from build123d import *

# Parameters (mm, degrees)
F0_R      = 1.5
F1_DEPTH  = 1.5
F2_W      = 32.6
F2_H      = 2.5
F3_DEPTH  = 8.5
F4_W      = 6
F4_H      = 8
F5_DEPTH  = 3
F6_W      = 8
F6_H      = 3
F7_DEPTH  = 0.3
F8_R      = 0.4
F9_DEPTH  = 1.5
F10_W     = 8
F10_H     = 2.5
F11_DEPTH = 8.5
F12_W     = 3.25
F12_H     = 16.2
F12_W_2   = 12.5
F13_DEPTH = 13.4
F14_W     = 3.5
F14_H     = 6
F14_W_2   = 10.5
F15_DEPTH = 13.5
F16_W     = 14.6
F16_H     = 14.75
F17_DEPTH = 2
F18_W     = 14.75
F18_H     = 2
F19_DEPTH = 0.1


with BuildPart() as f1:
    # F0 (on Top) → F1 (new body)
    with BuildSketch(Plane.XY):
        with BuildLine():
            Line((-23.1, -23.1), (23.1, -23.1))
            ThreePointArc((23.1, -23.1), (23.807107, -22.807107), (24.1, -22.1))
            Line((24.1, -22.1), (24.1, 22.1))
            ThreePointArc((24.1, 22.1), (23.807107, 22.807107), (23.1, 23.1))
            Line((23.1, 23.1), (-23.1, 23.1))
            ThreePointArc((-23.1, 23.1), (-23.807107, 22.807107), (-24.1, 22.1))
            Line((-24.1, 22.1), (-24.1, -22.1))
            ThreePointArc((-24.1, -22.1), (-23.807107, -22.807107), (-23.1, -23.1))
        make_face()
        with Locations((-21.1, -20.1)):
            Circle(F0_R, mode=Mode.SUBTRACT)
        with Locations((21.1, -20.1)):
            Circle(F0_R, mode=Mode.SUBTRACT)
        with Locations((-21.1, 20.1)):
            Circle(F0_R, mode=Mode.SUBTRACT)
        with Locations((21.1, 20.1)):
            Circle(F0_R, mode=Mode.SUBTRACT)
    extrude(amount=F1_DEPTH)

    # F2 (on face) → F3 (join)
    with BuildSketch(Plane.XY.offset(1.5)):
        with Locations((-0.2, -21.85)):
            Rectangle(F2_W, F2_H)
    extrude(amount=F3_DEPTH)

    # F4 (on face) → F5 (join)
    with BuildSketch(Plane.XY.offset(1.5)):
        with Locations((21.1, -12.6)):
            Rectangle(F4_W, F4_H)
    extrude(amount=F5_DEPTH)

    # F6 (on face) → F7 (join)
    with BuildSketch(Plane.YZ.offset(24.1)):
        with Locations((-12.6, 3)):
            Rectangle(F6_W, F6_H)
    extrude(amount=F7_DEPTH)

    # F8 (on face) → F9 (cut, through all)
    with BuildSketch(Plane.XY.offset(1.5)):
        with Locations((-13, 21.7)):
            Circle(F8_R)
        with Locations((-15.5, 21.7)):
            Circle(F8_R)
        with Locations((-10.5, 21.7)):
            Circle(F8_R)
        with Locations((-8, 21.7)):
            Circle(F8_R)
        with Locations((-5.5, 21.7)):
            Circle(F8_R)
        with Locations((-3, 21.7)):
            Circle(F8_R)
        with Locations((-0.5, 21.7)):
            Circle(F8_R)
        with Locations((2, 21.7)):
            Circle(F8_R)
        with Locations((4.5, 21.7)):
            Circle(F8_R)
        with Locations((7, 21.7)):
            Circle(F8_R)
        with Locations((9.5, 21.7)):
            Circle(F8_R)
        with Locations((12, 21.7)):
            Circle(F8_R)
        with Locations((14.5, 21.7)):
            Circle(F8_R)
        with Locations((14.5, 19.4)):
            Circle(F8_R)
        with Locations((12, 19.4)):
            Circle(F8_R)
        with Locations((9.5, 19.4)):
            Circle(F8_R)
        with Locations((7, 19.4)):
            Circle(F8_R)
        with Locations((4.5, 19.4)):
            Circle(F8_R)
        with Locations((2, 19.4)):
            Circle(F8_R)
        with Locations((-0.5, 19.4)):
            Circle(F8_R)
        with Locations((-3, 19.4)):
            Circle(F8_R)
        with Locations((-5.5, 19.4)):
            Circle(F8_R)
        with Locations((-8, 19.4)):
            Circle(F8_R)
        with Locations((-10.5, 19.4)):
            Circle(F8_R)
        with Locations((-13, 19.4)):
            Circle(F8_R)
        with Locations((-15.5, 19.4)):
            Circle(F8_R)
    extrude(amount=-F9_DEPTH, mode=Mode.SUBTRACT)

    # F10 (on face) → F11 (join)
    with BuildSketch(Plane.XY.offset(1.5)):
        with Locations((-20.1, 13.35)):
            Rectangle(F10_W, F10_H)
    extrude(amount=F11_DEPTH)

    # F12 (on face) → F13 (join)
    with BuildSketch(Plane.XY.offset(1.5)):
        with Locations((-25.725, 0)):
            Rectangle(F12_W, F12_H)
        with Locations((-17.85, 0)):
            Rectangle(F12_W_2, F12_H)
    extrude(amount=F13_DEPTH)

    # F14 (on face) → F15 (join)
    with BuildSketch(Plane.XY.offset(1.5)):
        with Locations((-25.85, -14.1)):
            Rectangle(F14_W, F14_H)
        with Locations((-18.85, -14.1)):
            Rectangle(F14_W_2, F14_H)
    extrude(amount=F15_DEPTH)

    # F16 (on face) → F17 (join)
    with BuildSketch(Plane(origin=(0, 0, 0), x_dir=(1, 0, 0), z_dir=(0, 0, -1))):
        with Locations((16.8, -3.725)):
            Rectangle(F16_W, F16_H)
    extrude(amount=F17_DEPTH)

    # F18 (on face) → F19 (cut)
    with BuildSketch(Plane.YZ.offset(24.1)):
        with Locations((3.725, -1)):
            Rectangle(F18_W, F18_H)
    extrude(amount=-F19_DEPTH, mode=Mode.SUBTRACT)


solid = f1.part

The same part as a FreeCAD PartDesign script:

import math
import FreeCAD as App
import Part
import Sketcher
from FreeCAD import Vector
Q = App.Units.Quantity

doc = App.newDocument("Part")
body = doc.addObject("PartDesign::Body", "Body")

# Sketch on XY plane
sketch1 = body.newObject("Sketcher::SketchObject", "Sketch")
sketch1.AttachmentSupport = (doc.getObject("XY_Plane"), [""])
sketch1.MapMode = "FlatFace"
sketch1.addGeometry([
    Part.LineSegment(Vector(-23.1, -23.1, 0), Vector(23.1, -23.1, 0)),  # 0
    Part.ArcOfCircle(Part.Circle(Vector(23.1, -22.1, 0), Vector(0, 0, 1), 1), math.radians(-90), math.radians(0)),  # 1
    Part.LineSegment(Vector(24.1, -22.1, 0), Vector(24.1, 22.1, 0)),  # 2
    Part.ArcOfCircle(Part.Circle(Vector(23.1, 22.1, 0), Vector(0, 0, 1), 1), math.radians(0), math.radians(90)),  # 3
    Part.LineSegment(Vector(23.1, 23.1, 0), Vector(-23.1, 23.1, 0)),  # 4
    Part.ArcOfCircle(Part.Circle(Vector(-23.1, 22.1, 0), Vector(0, 0, 1), 1), math.radians(90), math.radians(180)),  # 5
    Part.LineSegment(Vector(-24.1, 22.1, 0), Vector(-24.1, -22.1, 0)),  # 6
    Part.ArcOfCircle(Part.Circle(Vector(-23.1, -22.1, 0), Vector(0, 0, 1), 1), math.radians(180), math.radians(270)),  # 7
    Part.Circle(Vector(-21.1, -20.1, 0), Vector(0, 0, 1), 1.5),  # 8
    Part.Circle(Vector(21.1, -20.1, 0), Vector(0, 0, 1), 1.5),  # 9
    Part.Circle(Vector(-21.1, 20.1, 0), Vector(0, 0, 1), 1.5),  # 10
    Part.Circle(Vector(21.1, 20.1, 0), Vector(0, 0, 1), 1.5),  # 11
], False)
sketch1.addConstraint([
    Sketcher.Constraint("Tangent", 0, 2, 1, 1),
    Sketcher.Constraint("Tangent", 1, 2, 2, 1),
    Sketcher.Constraint("Tangent", 2, 2, 3, 1),
    Sketcher.Constraint("Tangent", 3, 2, 4, 1),
    Sketcher.Constraint("Tangent", 4, 2, 5, 1),
    Sketcher.Constraint("Tangent", 5, 2, 6, 1),
    Sketcher.Constraint("Tangent", 6, 2, 7, 1),
    Sketcher.Constraint("Tangent", 7, 2, 0, 1),
    Sketcher.Constraint("Horizontal", 0),
    Sketcher.Constraint("Vertical", 2),
    Sketcher.Constraint("Horizontal", 4),
    Sketcher.Constraint("Vertical", 6),
    Sketcher.Constraint("Equal", 1, 3),
    Sketcher.Constraint("Equal", 3, 5),
    Sketcher.Constraint("Equal", 5, 7),
    Sketcher.Constraint("Equal", 8, 9),
    Sketcher.Constraint("Equal", 9, 10),
    Sketcher.Constraint("Equal", 10, 11),
    Sketcher.Constraint("Symmetric", 1, 3, 5, 3, -1, 1),
    Sketcher.Constraint("Symmetric", 9, 3, 10, 3, -1, 1),
    Sketcher.Constraint("Symmetric", 8, 3, 11, 3, -1, 1),
    Sketcher.Constraint("Symmetric", 8, 3, 9, 3, -2),
    Sketcher.Constraint("Diameter", 8, Q("3 mm")),
    Sketcher.Constraint("Radius", 1, Q("0.999999 mm")),
    Sketcher.Constraint("DistanceX", 0, 1, 0, 2, Q("46.2 mm")),
    Sketcher.Constraint("DistanceY", 2, 1, 2, 2, Q("44.2 mm")),
    Sketcher.Constraint("DistanceX", 7, 3, 8, 3, Q("2.000001 mm")),
    Sketcher.Constraint("DistanceY", 7, 3, 8, 3, Q("2.000001 mm")),
])
pad1 = body.newObject("PartDesign::Pad", "Pad")
pad1.Profile = sketch1
pad1.Length = 1.5

# Sketch on XY plane
sketch2 = body.newObject("Sketcher::SketchObject", "Sketch001")
sketch2.AttachmentSupport = (doc.getObject("XY_Plane"), [""])
sketch2.MapMode = "FlatFace"
sketch2.AttachmentOffset = App.Placement(Vector(0, 0, 1.5), App.Rotation())
sketch2.addGeometry([
    Part.LineSegment(Vector(-16.5, -20.6, 0), Vector(-16.5, -23.1, 0)),
    Part.LineSegment(Vector(-16.5, -23.1, 0), Vector(16.1, -23.1, 0)),
    Part.LineSegment(Vector(16.1, -23.1, 0), Vector(16.1, -20.6, 0)),
    Part.LineSegment(Vector(16.1, -20.6, 0), Vector(-16.5, -20.6, 0)),
], False)
sketch2.addConstraint([
    Sketcher.Constraint("Coincident", 0, 2, 1, 1),
    Sketcher.Constraint("Coincident", 1, 2, 2, 1),
    Sketcher.Constraint("Coincident", 2, 2, 3, 1),
    Sketcher.Constraint("Coincident", 3, 2, 0, 1),
    Sketcher.Constraint("Vertical", 0),
    Sketcher.Constraint("Horizontal", 1),
    Sketcher.Constraint("Vertical", 2),
    Sketcher.Constraint("Horizontal", 3),
    Sketcher.Constraint("DistanceX", 1, 1, 1, 2, Q("32.6 mm")),
    Sketcher.Constraint("DistanceY", 0, 2, 0, 1, Q("2.5 mm")),
    Sketcher.Constraint("DistanceX", 0, 2, -1, 1, Q("16.5 mm")),
    Sketcher.Constraint("DistanceY", 0, 2, -1, 1, Q("23.1 mm")),
])
pad2 = body.newObject("PartDesign::Pad", "Pad001")
pad2.Profile = sketch2
pad2.Length = 8.5

# Sketch on XY plane
sketch3 = body.newObject("Sketcher::SketchObject", "Sketch002")
sketch3.AttachmentSupport = (doc.getObject("XY_Plane"), [""])
sketch3.MapMode = "FlatFace"
sketch3.AttachmentOffset = App.Placement(Vector(0, 0, 1.5), App.Rotation())
sketch3.addGeometry([
    Part.LineSegment(Vector(18, -9, 0), Vector(18, -17, 0)),
    Part.LineSegment(Vector(18, -17, 0), Vector(24, -17, 0)),
    Part.LineSegment(Vector(24, -17, 0), Vector(24, -9, 0)),
    Part.LineSegment(Vector(24, -9, 0), Vector(18, -9, 0)),
], False)
sketch3.addConstraint([
    Sketcher.Constraint("Coincident", 0, 2, 1, 1),
    Sketcher.Constraint("Coincident", 1, 2, 2, 1),
    Sketcher.Constraint("Coincident", 2, 2, 3, 1),
    Sketcher.Constraint("Coincident", 3, 2, 0, 1),
    Sketcher.Constraint("Vertical", 0),
    Sketcher.Constraint("Horizontal", 1),
    Sketcher.Constraint("Vertical", 2),
    Sketcher.Constraint("Horizontal", 3),
    Sketcher.Constraint("DistanceX", 1, 1, 1, 2, Q("6 mm")),
    Sketcher.Constraint("DistanceY", 0, 2, 0, 1, Q("8 mm")),
    Sketcher.Constraint("DistanceX", -1, 1, 0, 2, Q("18.1 mm")),
    Sketcher.Constraint("DistanceY", 0, 2, -1, 1, Q("16.6 mm")),
])
pad3 = body.newObject("PartDesign::Pad", "Pad002")
pad3.Profile = sketch3
pad3.Length = 3

# Sketch on YZ plane
sketch4 = body.newObject("Sketcher::SketchObject", "Sketch003")
sketch4.AttachmentSupport = (doc.getObject("YZ_Plane"), [""])
sketch4.MapMode = "FlatFace"
sketch4.AttachmentOffset = App.Placement(Vector(0, 0, 24.1), App.Rotation())
sketch4.addGeometry([
    Part.LineSegment(Vector(-16.6, 4.5, 0), Vector(-16.6, 1.5, 0)),
    Part.LineSegment(Vector(-16.6, 1.5, 0), Vector(-8.6, 1.5, 0)),
    Part.LineSegment(Vector(-8.6, 1.5, 0), Vector(-8.6, 4.5, 0)),
    Part.LineSegment(Vector(-8.6, 4.5, 0), Vector(-16.6, 4.5, 0)),
], False)
sketch4.addConstraint([
    Sketcher.Constraint("Coincident", 0, 2, 1, 1),
    Sketcher.Constraint("Coincident", 1, 2, 2, 1),
    Sketcher.Constraint("Coincident", 2, 2, 3, 1),
    Sketcher.Constraint("Coincident", 3, 2, 0, 1),
    Sketcher.Constraint("Vertical", 0),
    Sketcher.Constraint("Horizontal", 1),
    Sketcher.Constraint("Vertical", 2),
    Sketcher.Constraint("Horizontal", 3),
    Sketcher.Constraint("DistanceX", 1, 1, 1, 2, Q("8 mm")),
    Sketcher.Constraint("DistanceY", 0, 2, 0, 1, Q("3 mm")),
    Sketcher.Constraint("DistanceX", 0, 2, -1, 1, Q("16.6 mm")),
    Sketcher.Constraint("DistanceY", -1, 1, 0, 2, Q("1.5 mm")),
])
pad4 = body.newObject("PartDesign::Pad", "Pad003")
pad4.Profile = sketch4
pad4.Length = 0.3

# Sketch on XY plane
sketch5 = body.newObject("Sketcher::SketchObject", "Sketch004")
sketch5.AttachmentSupport = (doc.getObject("XY_Plane"), [""])
sketch5.MapMode = "FlatFace"
sketch5.AttachmentOffset = App.Placement(Vector(0, 0, 1.5), App.Rotation())
sketch5.addGeometry([
    Part.Circle(Vector(-13, 21.7, 0), Vector(0, 0, 1), 0.4),  # 0
    Part.Circle(Vector(-15.5, 21.7, 0), Vector(0, 0, 1), 0.4),  # 1
    Part.Circle(Vector(-10.5, 21.7, 0), Vector(0, 0, 1), 0.4),  # 2
    Part.Circle(Vector(-8, 21.7, 0), Vector(0, 0, 1), 0.4),  # 3
    Part.Circle(Vector(-5.5, 21.7, 0), Vector(0, 0, 1), 0.4),  # 4
    Part.Circle(Vector(-3, 21.7, 0), Vector(0, 0, 1), 0.4),  # 5
    Part.Circle(Vector(-0.5, 21.7, 0), Vector(0, 0, 1), 0.4),  # 6
    Part.Circle(Vector(2, 21.7, 0), Vector(0, 0, 1), 0.4),  # 7
    Part.Circle(Vector(4.5, 21.7, 0), Vector(0, 0, 1), 0.4),  # 8
    Part.Circle(Vector(7, 21.7, 0), Vector(0, 0, 1), 0.4),  # 9
    Part.Circle(Vector(9.5, 21.7, 0), Vector(0, 0, 1), 0.4),  # 10
    Part.Circle(Vector(12, 21.7, 0), Vector(0, 0, 1), 0.4),  # 11
    Part.Circle(Vector(14.5, 21.7, 0), Vector(0, 0, 1), 0.4),  # 12
    Part.Circle(Vector(14.5, 19.4, 0), Vector(0, 0, 1), 0.4),  # 13
    Part.Circle(Vector(12, 19.4, 0), Vector(0, 0, 1), 0.4),  # 14
    Part.Circle(Vector(9.5, 19.4, 0), Vector(0, 0, 1), 0.4),  # 15
    Part.Circle(Vector(7, 19.4, 0), Vector(0, 0, 1), 0.4),  # 16
    Part.Circle(Vector(4.5, 19.4, 0), Vector(0, 0, 1), 0.4),  # 17
    Part.Circle(Vector(2, 19.4, 0), Vector(0, 0, 1), 0.4),  # 18
    Part.Circle(Vector(-0.5, 19.4, 0), Vector(0, 0, 1), 0.4),  # 19
    Part.Circle(Vector(-3, 19.4, 0), Vector(0, 0, 1), 0.4),  # 20
    Part.Circle(Vector(-5.5, 19.4, 0), Vector(0, 0, 1), 0.4),  # 21
    Part.Circle(Vector(-8, 19.4, 0), Vector(0, 0, 1), 0.4),  # 22
    Part.Circle(Vector(-10.5, 19.4, 0), Vector(0, 0, 1), 0.4),  # 23
    Part.Circle(Vector(-13, 19.4, 0), Vector(0, 0, 1), 0.4),  # 24
    Part.Circle(Vector(-15.5, 19.4, 0), Vector(0, 0, 1), 0.4),  # 25
], False)
sketch5.addConstraint([
    Sketcher.Constraint("Equal", 0, 1),
    Sketcher.Constraint("Equal", 1, 2),
    Sketcher.Constraint("Equal", 2, 3),
    Sketcher.Constraint("Equal", 3, 4),
    Sketcher.Constraint("Equal", 4, 5),
    Sketcher.Constraint("Equal", 5, 6),
    Sketcher.Constraint("Equal", 6, 7),
    Sketcher.Constraint("Equal", 7, 8),
    Sketcher.Constraint("Equal", 8, 9),
    Sketcher.Constraint("Equal", 9, 10),
    Sketcher.Constraint("Equal", 10, 11),
    Sketcher.Constraint("Equal", 11, 12),
    Sketcher.Constraint("Equal", 12, 13),
    Sketcher.Constraint("Equal", 13, 14),
    Sketcher.Constraint("Equal", 14, 15),
    Sketcher.Constraint("Equal", 15, 16),
    Sketcher.Constraint("Equal", 16, 17),
    Sketcher.Constraint("Equal", 17, 18),
    Sketcher.Constraint("Equal", 18, 19),
    Sketcher.Constraint("Equal", 19, 20),
    Sketcher.Constraint("Equal", 20, 21),
    Sketcher.Constraint("Equal", 21, 22),
    Sketcher.Constraint("Equal", 22, 23),
    Sketcher.Constraint("Equal", 23, 24),
    Sketcher.Constraint("Equal", 24, 25),
    Sketcher.Constraint("Horizontal", 0, 3, 1, 3),
    Sketcher.Constraint("Horizontal", 1, 3, 2, 3),
    Sketcher.Constraint("Horizontal", 2, 3, 3, 3),
    Sketcher.Constraint("Horizontal", 3, 3, 4, 3),
    Sketcher.Constraint("Horizontal", 4, 3, 5, 3),
    Sketcher.Constraint("Horizontal", 5, 3, 6, 3),
    Sketcher.Constraint("Horizontal", 6, 3, 7, 3),
    Sketcher.Constraint("Horizontal", 7, 3, 8, 3),
    Sketcher.Constraint("Horizontal", 8, 3, 9, 3),
    Sketcher.Constraint("Horizontal", 9, 3, 10, 3),
    Sketcher.Constraint("Horizontal", 10, 3, 11, 3),
    Sketcher.Constraint("Horizontal", 11, 3, 12, 3),
    Sketcher.Constraint("Horizontal", 13, 3, 14, 3),
    Sketcher.Constraint("Horizontal", 14, 3, 15, 3),
    Sketcher.Constraint("Horizontal", 15, 3, 16, 3),
    Sketcher.Constraint("Horizontal", 16, 3, 17, 3),
    Sketcher.Constraint("Horizontal", 17, 3, 18, 3),
    Sketcher.Constraint("Horizontal", 18, 3, 19, 3),
    Sketcher.Constraint("Horizontal", 19, 3, 20, 3),
    Sketcher.Constraint("Horizontal", 20, 3, 21, 3),
    Sketcher.Constraint("Horizontal", 21, 3, 22, 3),
    Sketcher.Constraint("Horizontal", 22, 3, 23, 3),
    Sketcher.Constraint("Horizontal", 23, 3, 24, 3),
    Sketcher.Constraint("Horizontal", 24, 3, 25, 3),
    Sketcher.Constraint("Vertical", 12, 3, 13, 3),
    Sketcher.Constraint("Vertical", 11, 3, 14, 3),
    Sketcher.Constraint("Vertical", 10, 3, 15, 3),
    Sketcher.Constraint("Vertical", 9, 3, 16, 3),
    Sketcher.Constraint("Vertical", 8, 3, 17, 3),
    Sketcher.Constraint("Vertical", 7, 3, 18, 3),
    Sketcher.Constraint("Vertical", 6, 3, 19, 3),
    Sketcher.Constraint("Vertical", 5, 3, 20, 3),
    Sketcher.Constraint("Vertical", 4, 3, 21, 3),
    Sketcher.Constraint("Vertical", 3, 3, 22, 3),
    Sketcher.Constraint("Vertical", 2, 3, 23, 3),
    Sketcher.Constraint("Vertical", 0, 3, 24, 3),
    Sketcher.Constraint("Vertical", 1, 3, 25, 3),
    Sketcher.Constraint("Diameter", 0, Q("0.8 mm")),
    Sketcher.Constraint("DistanceX", 0, 3, -1, 1, Q("13 mm")),
    Sketcher.Constraint("DistanceX", 3, 3, -1, 1, Q("8 mm")),
    Sketcher.Constraint("DistanceX", 5, 3, -1, 1, Q("3 mm")),
    Sketcher.Constraint("DistanceX", -1, 1, 7, 3, Q("2 mm")),
    Sketcher.Constraint("DistanceX", -1, 1, 9, 3, Q("7 mm")),
    Sketcher.Constraint("DistanceX", -1, 1, 11, 3, Q("12 mm")),
    Sketcher.Constraint("DistanceX", 1, 3, 2, 3, Q("5 mm")),
    Sketcher.Constraint("DistanceX", 2, 3, 4, 3, Q("5 mm")),
    Sketcher.Constraint("DistanceX", 4, 3, 6, 3, Q("5 mm")),
    Sketcher.Constraint("DistanceX", 6, 3, 8, 3, Q("5 mm")),
    Sketcher.Constraint("DistanceX", 8, 3, 10, 3, Q("5 mm")),
    Sketcher.Constraint("DistanceX", 10, 3, 12, 3, Q("5 mm")),
    Sketcher.Constraint("DistanceY", -1, 1, 0, 3, Q("21.7 mm")),
    Sketcher.Constraint("DistanceX", 1, 3, -1, 1, Q("15.5 mm")),
    Sketcher.Constraint("DistanceY", -1, 1, 13, 3, Q("19.4 mm")),
])
pocket1 = body.newObject("PartDesign::Pocket", "Pocket")
pocket1.Profile = sketch5
pocket1.Type = "ThroughAll"

# Sketch on XY plane
sketch6 = body.newObject("Sketcher::SketchObject", "Sketch005")
sketch6.AttachmentSupport = (doc.getObject("XY_Plane"), [""])
sketch6.MapMode = "FlatFace"
sketch6.AttachmentOffset = App.Placement(Vector(0, 0, 1.5), App.Rotation())
sketch6.addGeometry([
    Part.LineSegment(Vector(-24.1, 14.6, 0), Vector(-24.1, 12.1, 0)),
    Part.LineSegment(Vector(-24.1, 12.1, 0), Vector(-16.1, 12.1, 0)),
    Part.LineSegment(Vector(-16.1, 12.1, 0), Vector(-16.1, 14.6, 0)),
    Part.LineSegment(Vector(-16.1, 14.6, 0), Vector(-24.1, 14.6, 0)),
], False)
sketch6.addConstraint([
    Sketcher.Constraint("Coincident", 0, 2, 1, 1),
    Sketcher.Constraint("Coincident", 1, 2, 2, 1),
    Sketcher.Constraint("Coincident", 2, 2, 3, 1),
    Sketcher.Constraint("Coincident", 3, 2, 0, 1),
    Sketcher.Constraint("Vertical", 0),
    Sketcher.Constraint("Horizontal", 1),
    Sketcher.Constraint("Vertical", 2),
    Sketcher.Constraint("Horizontal", 3),
    Sketcher.Constraint("DistanceX", 1, 1, 1, 2, Q("8 mm")),
    Sketcher.Constraint("DistanceY", 0, 2, 0, 1, Q("2.5 mm")),
    Sketcher.Constraint("DistanceX", 0, 2, -1, 1, Q("24.1 mm")),
    Sketcher.Constraint("DistanceY", -1, 1, 0, 2, Q("12.1 mm")),
])
pad5 = body.newObject("PartDesign::Pad", "Pad004")
pad5.Profile = sketch6
pad5.Length = 8.5

# Sketch on XY plane
sketch7 = body.newObject("Sketcher::SketchObject", "Sketch006")
sketch7.AttachmentSupport = (doc.getObject("XY_Plane"), [""])
sketch7.MapMode = "FlatFace"
sketch7.AttachmentOffset = App.Placement(Vector(0, 0, 1.5), App.Rotation())
sketch7.addGeometry([
    Part.LineSegment(Vector(-27, 8, 0), Vector(-27, -8, 0)),
    Part.LineSegment(Vector(-27, -8, 0), Vector(-12, -8, 0)),
    Part.LineSegment(Vector(-12, -8, 0), Vector(-12, 8, 0)),
    Part.LineSegment(Vector(-12, 8, 0), Vector(-27, 8, 0)),
], False)
sketch7.addConstraint([
    Sketcher.Constraint("Coincident", 0, 2, 1, 1),
    Sketcher.Constraint("Coincident", 1, 2, 2, 1),
    Sketcher.Constraint("Coincident", 2, 2, 3, 1),
    Sketcher.Constraint("Coincident", 3, 2, 0, 1),
    Sketcher.Constraint("Vertical", 0),
    Sketcher.Constraint("Horizontal", 1),
    Sketcher.Constraint("Vertical", 2),
    Sketcher.Constraint("Horizontal", 3),
    Sketcher.Constraint("DistanceY", 0, 2, 0, 1, Q("16.2 mm")),
    Sketcher.Constraint("DistanceX", 1, 1, 1, 2, Q("15.75 mm")),
    Sketcher.Constraint("DistanceY", 0, 2, -1, 1, Q("8.1 mm")),
    Sketcher.Constraint("DistanceX", 1, 2, -1, 1, Q("11.6 mm")),
])
pad6 = body.newObject("PartDesign::Pad", "Pad005")
pad6.Profile = sketch7
pad6.Length = 13.4

# Sketch on XY plane
sketch8 = body.newObject("Sketcher::SketchObject", "Sketch007")
sketch8.AttachmentSupport = (doc.getObject("XY_Plane"), [""])
sketch8.MapMode = "FlatFace"
sketch8.AttachmentOffset = App.Placement(Vector(0, 0, 1.5), App.Rotation())
sketch8.addGeometry([
    Part.LineSegment(Vector(-28, -11, 0), Vector(-28, -17, 0)),
    Part.LineSegment(Vector(-28, -17, 0), Vector(-14, -17, 0)),
    Part.LineSegment(Vector(-14, -17, 0), Vector(-14, -11, 0)),
    Part.LineSegment(Vector(-14, -11, 0), Vector(-28, -11, 0)),
], False)
sketch8.addConstraint([
    Sketcher.Constraint("Coincident", 0, 2, 1, 1),
    Sketcher.Constraint("Coincident", 1, 2, 2, 1),
    Sketcher.Constraint("Coincident", 2, 2, 3, 1),
    Sketcher.Constraint("Coincident", 3, 2, 0, 1),
    Sketcher.Constraint("Vertical", 0),
    Sketcher.Constraint("Horizontal", 1),
    Sketcher.Constraint("Vertical", 2),
    Sketcher.Constraint("Horizontal", 3),
    Sketcher.Constraint("DistanceX", 1, 1, 1, 2, Q("14 mm")),
    Sketcher.Constraint("DistanceY", 0, 2, 0, 1, Q("6 mm")),
    Sketcher.Constraint("DistanceX", 0, 2, -1, 1, Q("27.6 mm")),
    Sketcher.Constraint("DistanceY", 0, 2, -1, 1, Q("17.1 mm")),
])
pad7 = body.newObject("PartDesign::Pad", "Pad006")
pad7.Profile = sketch8
pad7.Length = 13.5

# Sketch on XY plane
sketch9 = body.newObject("Sketcher::SketchObject", "Sketch008")
sketch9.AttachmentSupport = (doc.getObject("XY_Plane"), [""])
sketch9.MapMode = "FlatFace"
sketch9.addGeometry([
    Part.LineSegment(Vector(10, -4, 0), Vector(10, 11, 0)),
    Part.LineSegment(Vector(10, 11, 0), Vector(24, 11, 0)),
    Part.LineSegment(Vector(24, 11, 0), Vector(24, -4, 0)),
    Part.LineSegment(Vector(24, -4, 0), Vector(10, -4, 0)),
], False)
sketch9.addConstraint([
    Sketcher.Constraint("Coincident", 0, 2, 1, 1),
    Sketcher.Constraint("Coincident", 1, 2, 2, 1),
    Sketcher.Constraint("Coincident", 2, 2, 3, 1),
    Sketcher.Constraint("Coincident", 3, 2, 0, 1),
    Sketcher.Constraint("Vertical", 0),
    Sketcher.Constraint("Horizontal", 1),
    Sketcher.Constraint("Vertical", 2),
    Sketcher.Constraint("Horizontal", 3),
    Sketcher.Constraint("DistanceX", 1, 1, 1, 2, Q("14.6 mm")),
    Sketcher.Constraint("DistanceY", 0, 1, 0, 2, Q("14.75 mm")),
    Sketcher.Constraint("DistanceX", -1, 1, 0, 2, Q("9.5 mm")),
    Sketcher.Constraint("DistanceY", -1, 1, 0, 2, Q("11.1 mm")),
])
pad8 = body.newObject("PartDesign::Pad", "Pad007")
pad8.Profile = sketch9
pad8.Length = 2
pad8.Reversed = True

# Sketch on YZ plane
sketch10 = body.newObject("Sketcher::SketchObject", "Sketch009")
sketch10.AttachmentSupport = (doc.getObject("YZ_Plane"), [""])
sketch10.MapMode = "FlatFace"
sketch10.AttachmentOffset = App.Placement(Vector(0, 0, 24.1), App.Rotation())
sketch10.addGeometry([
    Part.LineSegment(Vector(-3.6, 0, 0), Vector(-3.6, -2, 0)),
    Part.LineSegment(Vector(-3.6, -2, 0), Vector(11.1, -2, 0)),
    Part.LineSegment(Vector(11.1, -2, 0), Vector(11.1, 0, 0)),
    Part.LineSegment(Vector(11.1, 0, 0), Vector(-3.6, 0, 0)),
], False)
sketch10.addConstraint([
    Sketcher.Constraint("Coincident", 0, 2, 1, 1),
    Sketcher.Constraint("Coincident", 1, 2, 2, 1),
    Sketcher.Constraint("Coincident", 2, 2, 3, 1),
    Sketcher.Constraint("Coincident", 3, 2, 0, 1),
    Sketcher.Constraint("Vertical", 0),
    Sketcher.Constraint("Horizontal", 1),
    Sketcher.Constraint("Vertical", 2),
    Sketcher.Constraint("Horizontal", 3),
    Sketcher.Constraint("PointOnObject", 2, 2, -1),
    Sketcher.Constraint("DistanceY", 0, 2, 0, 1, Q("2 mm")),
    Sketcher.Constraint("DistanceX", 1, 1, 1, 2, Q("14.75 mm")),
    Sketcher.Constraint("DistanceX", -1, 1, 1, 2, Q("11.1 mm")),
])
pocket2 = body.newObject("PartDesign::Pocket", "Pocket001")
pocket2.Profile = sketch10
pocket2.Length = 0.1

doc.recompute()
